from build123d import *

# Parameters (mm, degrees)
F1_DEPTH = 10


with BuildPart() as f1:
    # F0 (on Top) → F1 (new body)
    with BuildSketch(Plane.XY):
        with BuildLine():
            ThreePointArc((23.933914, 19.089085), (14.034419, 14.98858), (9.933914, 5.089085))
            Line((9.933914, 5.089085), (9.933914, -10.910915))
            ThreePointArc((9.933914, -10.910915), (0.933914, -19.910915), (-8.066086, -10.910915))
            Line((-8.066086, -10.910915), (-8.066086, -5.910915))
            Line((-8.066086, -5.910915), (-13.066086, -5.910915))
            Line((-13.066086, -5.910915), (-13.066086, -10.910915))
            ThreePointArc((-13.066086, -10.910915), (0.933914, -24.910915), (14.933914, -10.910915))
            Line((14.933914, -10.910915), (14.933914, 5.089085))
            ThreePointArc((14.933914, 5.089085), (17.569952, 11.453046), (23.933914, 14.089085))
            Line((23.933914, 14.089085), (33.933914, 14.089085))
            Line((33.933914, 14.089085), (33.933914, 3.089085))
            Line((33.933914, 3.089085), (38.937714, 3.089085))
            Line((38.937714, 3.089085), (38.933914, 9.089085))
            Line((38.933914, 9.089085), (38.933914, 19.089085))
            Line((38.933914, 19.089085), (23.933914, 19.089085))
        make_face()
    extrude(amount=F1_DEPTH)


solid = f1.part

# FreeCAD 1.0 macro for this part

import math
import FreeCAD as App
import Part
import Sketcher

doc = App.newDocument("Part")
params = doc.addObject("Spreadsheet::Sheet", "Params")
for row, (alias, value) in enumerate([
    ("sketch1_radius", "14 mm"),
    ("sketch1_radius2", "9 mm"),
    ("sketch1_width", "10 mm"),
    ("sketch1_width2", "15 mm"),
    ("sketch1_height", "16 mm"),
    ("pad1_length", "10 mm"),
], start=1):
    params.set(f"A{row}", alias)
    params.set(f"B{row}", "=" + value)
    params.setAlias(f"B{row}", alias)

body = doc.addObject("PartDesign::Body", "Body")

sketch1 = body.newObject("Sketcher::SketchObject", "Sketch")
sketch1.AttachmentSupport = (doc.getObject("XY_Plane"), [""])
sketch1.MapMode = "FlatFace"
sketch1.addGeometry([
    Part.ArcOfCircle(Part.Circle(App.Vector(23.9, 5.1, 0), App.Vector(0, 0, 1), 14), math.radians(90), math.radians(180)),
    Part.LineSegment(App.Vector(9.9, 5.1, 0), App.Vector(9.9, -10.9, 0)),
    Part.ArcOfCircle(Part.Circle(App.Vector(0.9, -10.9, 0), App.Vector(0, 0, 1), 9), math.radians(180), math.radians(360)),
    Part.LineSegment(App.Vector(-8.1, -10.9, 0), App.Vector(-8.1, -5.9, 0)),
    Part.LineSegment(App.Vector(-8.1, -5.9, 0), App.Vector(-13.1, -5.9, 0)),
    Part.LineSegment(App.Vector(-13.1, -5.9, 0), App.Vector(-13.1, -10.9, 0)),
    Part.ArcOfCircle(Part.Circle(App.Vector(0.9, -10.9, 0), App.Vector(0, 0, 1), 14), math.radians(180), math.radians(360)),
    Part.LineSegment(App.Vector(14.9, -10.9, 0), App.Vector(14.9, 5.1, 0)),
    Part.ArcOfCircle(Part.Circle(App.Vector(23.9, 5.1, 0), App.Vector(0, 0, 1), 9), math.radians(90), math.radians(180)),
    Part.LineSegment(App.Vector(23.9, 14.1, 0), App.Vector(33.9, 14.1, 0)),
    Part.LineSegment(App.Vector(33.9, 14.1, 0), App.Vector(33.9, 3.1, 0)),
    Part.LineSegment(App.Vector(33.9, 3.1, 0), App.Vector(38.9, 3.1, 0)),
    Part.LineSegment(App.Vector(38.9, 3.1, 0), App.Vector(38.9, 9.1, 0)),
    Part.LineSegment(App.Vector(38.9, 9.1, 0), App.Vector(38.9, 19.1, 0)),
    Part.LineSegment(App.Vector(38.9, 19.1, 0), App.Vector(23.9, 19.1, 0)),
], False)
sketch1.addConstraint([
    Sketcher.Constraint("Tangent", 0, 2, 1, 1),
    Sketcher.Constraint("Tangent", 1, 2, 2, 2),
    Sketcher.Constraint("Tangent", 2, 1, 3, 1),
    Sketcher.Constraint("Coincident", 3, 2, 4, 1),
    Sketcher.Constraint("Coincident", 4, 2, 5, 1),
    Sketcher.Constraint("Tangent", 5, 2, 6, 1),
    Sketcher.Constraint("Tangent", 6, 2, 7, 1),
    Sketcher.Constraint("Tangent", 7, 2, 8, 2),
    Sketcher.Constraint("Tangent", 8, 1, 9, 1),
    Sketcher.Constraint("Coincident", 9, 2, 10, 1),
    Sketcher.Constraint("Coincident", 10, 2, 11, 1),
    Sketcher.Constraint("Coincident", 11, 2, 12, 1),
    Sketcher.Constraint("Coincident", 12, 2, 13, 1),
    Sketcher.Constraint("Coincident", 13, 2, 14, 1),
    Sketcher.Constraint("Tangent", 14, 2, 0, 1),
    Sketcher.Constraint("Vertical", 1),
    Sketcher.Constraint("Vertical", 3),
    Sketcher.Constraint("Horizontal", 4),
    Sketcher.Constraint("Vertical", 5),
    Sketcher.Constraint("Vertical", 7),
    Sketcher.Constraint("Horizontal", 9),
    Sketcher.Constraint("Vertical", 10),
    Sketcher.Constraint("Horizontal", 11),
    Sketcher.Constraint("Vertical", 13),
    Sketcher.Constraint("Horizontal", 14),
    Sketcher.Constraint("Coincident", 6, 3, 2, 3),
    Sketcher.Constraint("Coincident", 8, 3, 0, 3),
    Sketcher.Constraint("Equal", 0, 6),
    Sketcher.Constraint("Equal", 4, 3),
    Sketcher.Constraint("Equal", 9, 13),
    Sketcher.Constraint("Radius", 0, 14.0),
    Sketcher.Constraint("Radius", 2, 9.0),
    Sketcher.Constraint("DistanceX", 9, 1, 9, 2, 10.0),
    Sketcher.Constraint("DistanceX", 14, 2, 14, 1, 15.0),
    Sketcher.Constraint("DistanceY", 1, 2, 1, 1, 16.0),
    Sketcher.Constraint("DistanceY", 10, 2, 10, 1, 11.0),
    Sketcher.Constraint("DistanceX", 11, 1, 11, 2, 5.0038),
    Sketcher.Constraint("DistanceX", -1, 1, 0, 3, 23.933914),
    Sketcher.Constraint("DistanceY", -1, 1, 0, 3, 5.089085),
])
sketch1.setExpression("Constraints[30]", "Params.sketch1_radius")
sketch1.setExpression("Constraints[31]", "Params.sketch1_radius2")
sketch1.setExpression("Constraints[32]", "Params.sketch1_width")
sketch1.setExpression("Constraints[33]", "Params.sketch1_width2")
sketch1.setExpression("Constraints[34]", "Params.sketch1_height")
pad1 = body.newObject("PartDesign::Pad", "Pad")
pad1.Profile = sketch1
pad1.setExpression("Length", "Params.pad1_length")

doc.recompute()
